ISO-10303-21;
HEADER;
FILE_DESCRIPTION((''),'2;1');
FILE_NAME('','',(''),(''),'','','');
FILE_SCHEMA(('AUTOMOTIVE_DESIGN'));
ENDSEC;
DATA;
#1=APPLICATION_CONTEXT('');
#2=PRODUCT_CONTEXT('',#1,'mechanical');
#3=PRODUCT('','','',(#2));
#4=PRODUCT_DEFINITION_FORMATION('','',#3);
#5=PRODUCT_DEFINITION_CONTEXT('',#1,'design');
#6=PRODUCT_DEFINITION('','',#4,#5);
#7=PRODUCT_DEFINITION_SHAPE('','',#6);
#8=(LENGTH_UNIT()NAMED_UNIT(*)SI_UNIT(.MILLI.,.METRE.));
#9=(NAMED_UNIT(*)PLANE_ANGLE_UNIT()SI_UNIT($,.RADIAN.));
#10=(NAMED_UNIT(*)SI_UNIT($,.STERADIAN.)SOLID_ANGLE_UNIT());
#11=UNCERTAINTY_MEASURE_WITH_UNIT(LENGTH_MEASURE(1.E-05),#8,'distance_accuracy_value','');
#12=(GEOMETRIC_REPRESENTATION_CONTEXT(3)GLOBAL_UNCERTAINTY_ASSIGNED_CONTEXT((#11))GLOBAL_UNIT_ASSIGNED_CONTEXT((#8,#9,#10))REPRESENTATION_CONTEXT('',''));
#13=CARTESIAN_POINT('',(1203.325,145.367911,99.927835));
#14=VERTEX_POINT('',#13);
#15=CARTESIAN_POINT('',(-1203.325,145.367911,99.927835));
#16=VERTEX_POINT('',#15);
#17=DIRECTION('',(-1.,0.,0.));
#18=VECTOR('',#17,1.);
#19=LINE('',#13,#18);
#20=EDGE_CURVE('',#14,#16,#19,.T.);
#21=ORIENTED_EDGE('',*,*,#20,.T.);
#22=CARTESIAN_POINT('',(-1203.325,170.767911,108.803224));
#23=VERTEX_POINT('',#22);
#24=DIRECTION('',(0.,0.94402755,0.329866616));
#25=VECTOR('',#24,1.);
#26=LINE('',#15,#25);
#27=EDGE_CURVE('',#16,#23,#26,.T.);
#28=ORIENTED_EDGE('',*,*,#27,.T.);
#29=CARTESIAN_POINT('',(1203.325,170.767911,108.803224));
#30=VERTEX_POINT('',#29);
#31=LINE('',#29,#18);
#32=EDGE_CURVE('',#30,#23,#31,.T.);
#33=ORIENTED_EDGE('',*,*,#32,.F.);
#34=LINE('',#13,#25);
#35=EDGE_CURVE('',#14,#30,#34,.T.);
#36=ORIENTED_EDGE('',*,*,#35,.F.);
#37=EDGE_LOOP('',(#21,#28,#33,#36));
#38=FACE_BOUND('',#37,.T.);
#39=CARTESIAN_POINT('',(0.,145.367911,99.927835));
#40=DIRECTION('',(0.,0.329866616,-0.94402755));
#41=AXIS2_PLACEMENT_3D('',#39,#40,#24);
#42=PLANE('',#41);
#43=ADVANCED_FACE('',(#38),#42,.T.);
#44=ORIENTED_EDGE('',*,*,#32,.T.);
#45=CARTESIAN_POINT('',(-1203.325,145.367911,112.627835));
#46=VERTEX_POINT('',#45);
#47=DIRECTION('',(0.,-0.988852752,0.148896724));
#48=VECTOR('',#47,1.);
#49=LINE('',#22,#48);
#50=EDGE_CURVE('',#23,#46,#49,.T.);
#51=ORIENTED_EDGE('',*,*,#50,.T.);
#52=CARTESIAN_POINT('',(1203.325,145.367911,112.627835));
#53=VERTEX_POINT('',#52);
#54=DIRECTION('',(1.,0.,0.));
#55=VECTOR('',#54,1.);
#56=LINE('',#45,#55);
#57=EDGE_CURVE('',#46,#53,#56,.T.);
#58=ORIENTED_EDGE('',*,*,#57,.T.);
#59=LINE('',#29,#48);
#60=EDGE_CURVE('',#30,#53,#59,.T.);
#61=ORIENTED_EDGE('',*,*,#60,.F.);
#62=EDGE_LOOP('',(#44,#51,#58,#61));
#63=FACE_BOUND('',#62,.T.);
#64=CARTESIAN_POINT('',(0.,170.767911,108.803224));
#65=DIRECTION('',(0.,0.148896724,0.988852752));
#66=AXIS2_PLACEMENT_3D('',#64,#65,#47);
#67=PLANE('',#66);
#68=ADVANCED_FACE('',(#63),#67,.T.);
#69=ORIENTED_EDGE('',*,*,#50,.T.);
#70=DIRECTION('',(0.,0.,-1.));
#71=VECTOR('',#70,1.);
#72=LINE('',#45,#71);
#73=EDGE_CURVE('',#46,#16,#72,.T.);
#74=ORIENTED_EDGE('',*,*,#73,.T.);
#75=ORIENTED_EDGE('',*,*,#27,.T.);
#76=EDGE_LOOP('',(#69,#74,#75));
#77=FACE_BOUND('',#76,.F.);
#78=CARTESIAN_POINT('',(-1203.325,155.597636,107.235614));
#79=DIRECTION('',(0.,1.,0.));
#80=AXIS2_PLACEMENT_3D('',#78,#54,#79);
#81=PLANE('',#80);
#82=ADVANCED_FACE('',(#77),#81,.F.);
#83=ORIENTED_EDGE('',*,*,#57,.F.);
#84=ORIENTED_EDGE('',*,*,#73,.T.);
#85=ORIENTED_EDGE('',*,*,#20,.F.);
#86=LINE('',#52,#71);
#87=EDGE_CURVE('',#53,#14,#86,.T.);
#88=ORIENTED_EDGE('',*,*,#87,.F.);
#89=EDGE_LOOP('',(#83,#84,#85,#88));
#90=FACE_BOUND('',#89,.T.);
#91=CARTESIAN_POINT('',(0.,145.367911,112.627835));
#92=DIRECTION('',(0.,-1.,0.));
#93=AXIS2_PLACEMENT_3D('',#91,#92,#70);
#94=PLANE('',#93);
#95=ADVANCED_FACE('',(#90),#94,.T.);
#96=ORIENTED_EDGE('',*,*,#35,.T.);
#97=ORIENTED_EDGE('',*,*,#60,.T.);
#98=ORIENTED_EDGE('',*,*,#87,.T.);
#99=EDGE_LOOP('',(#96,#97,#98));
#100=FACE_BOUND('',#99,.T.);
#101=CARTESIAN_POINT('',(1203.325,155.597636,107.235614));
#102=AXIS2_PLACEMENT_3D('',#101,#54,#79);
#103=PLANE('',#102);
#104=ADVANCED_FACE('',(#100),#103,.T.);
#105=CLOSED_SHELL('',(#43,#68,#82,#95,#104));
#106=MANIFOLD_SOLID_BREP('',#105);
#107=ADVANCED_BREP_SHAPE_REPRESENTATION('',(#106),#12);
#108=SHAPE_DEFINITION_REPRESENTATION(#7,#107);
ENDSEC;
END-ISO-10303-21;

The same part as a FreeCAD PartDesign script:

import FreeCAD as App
import Part
import Sketcher

V = App.Vector
Q = App.Units.Quantity


def add_polygon(sketch, points):
    """Adds a closed chain of lines whose ends are joined by coincident constraints."""
    first, n = sketch.GeometryCount, len(points)
    for a, b in zip(points, points[1:] + points[:1]):
        sketch.addGeometry(Part.LineSegment(App.Vector(*a, 0), App.Vector(*b, 0)), False)
    for i in range(n):
        sketch.addConstraint(Sketcher.Constraint("Coincident", first + i, 2, first + (i + 1) % n, 1))

doc = App.newDocument("Part")
body = doc.addObject("PartDesign::Body", "Body")

sketch1 = body.newObject("Sketcher::SketchObject", "Sketch")
sketch1.AttachmentSupport = (doc.getObject("YZ_Plane"), [""])
sketch1.MapMode = "FlatFace"
add_polygon(sketch1, [(170.767911, 108.803224), (145.367911, 112.627835), (145.367911, 99.927835)])
sketch1.addConstraint([
    Sketcher.Constraint("Vertical", 1),
    Sketcher.Constraint("DistanceY", 1, 2, 1, 1, Q("0.5 in")),
    Sketcher.Constraint("DistanceX", 0, 2, 2, 2, Q("1 in")),
    Sketcher.Constraint("Distance", 0, 25.686332),
    Sketcher.Constraint("DistanceX", -1, 1, 0, 2, 145.367911),
    Sketcher.Constraint("DistanceY", -1, 1, 0, 2, 112.627835),
])
pad1 = body.newObject("PartDesign::Pad", "Pad")
pad1.Profile = sketch1
pad1.Length = Q("94.75 in")
pad1.Midplane = True

doc.recompute()
